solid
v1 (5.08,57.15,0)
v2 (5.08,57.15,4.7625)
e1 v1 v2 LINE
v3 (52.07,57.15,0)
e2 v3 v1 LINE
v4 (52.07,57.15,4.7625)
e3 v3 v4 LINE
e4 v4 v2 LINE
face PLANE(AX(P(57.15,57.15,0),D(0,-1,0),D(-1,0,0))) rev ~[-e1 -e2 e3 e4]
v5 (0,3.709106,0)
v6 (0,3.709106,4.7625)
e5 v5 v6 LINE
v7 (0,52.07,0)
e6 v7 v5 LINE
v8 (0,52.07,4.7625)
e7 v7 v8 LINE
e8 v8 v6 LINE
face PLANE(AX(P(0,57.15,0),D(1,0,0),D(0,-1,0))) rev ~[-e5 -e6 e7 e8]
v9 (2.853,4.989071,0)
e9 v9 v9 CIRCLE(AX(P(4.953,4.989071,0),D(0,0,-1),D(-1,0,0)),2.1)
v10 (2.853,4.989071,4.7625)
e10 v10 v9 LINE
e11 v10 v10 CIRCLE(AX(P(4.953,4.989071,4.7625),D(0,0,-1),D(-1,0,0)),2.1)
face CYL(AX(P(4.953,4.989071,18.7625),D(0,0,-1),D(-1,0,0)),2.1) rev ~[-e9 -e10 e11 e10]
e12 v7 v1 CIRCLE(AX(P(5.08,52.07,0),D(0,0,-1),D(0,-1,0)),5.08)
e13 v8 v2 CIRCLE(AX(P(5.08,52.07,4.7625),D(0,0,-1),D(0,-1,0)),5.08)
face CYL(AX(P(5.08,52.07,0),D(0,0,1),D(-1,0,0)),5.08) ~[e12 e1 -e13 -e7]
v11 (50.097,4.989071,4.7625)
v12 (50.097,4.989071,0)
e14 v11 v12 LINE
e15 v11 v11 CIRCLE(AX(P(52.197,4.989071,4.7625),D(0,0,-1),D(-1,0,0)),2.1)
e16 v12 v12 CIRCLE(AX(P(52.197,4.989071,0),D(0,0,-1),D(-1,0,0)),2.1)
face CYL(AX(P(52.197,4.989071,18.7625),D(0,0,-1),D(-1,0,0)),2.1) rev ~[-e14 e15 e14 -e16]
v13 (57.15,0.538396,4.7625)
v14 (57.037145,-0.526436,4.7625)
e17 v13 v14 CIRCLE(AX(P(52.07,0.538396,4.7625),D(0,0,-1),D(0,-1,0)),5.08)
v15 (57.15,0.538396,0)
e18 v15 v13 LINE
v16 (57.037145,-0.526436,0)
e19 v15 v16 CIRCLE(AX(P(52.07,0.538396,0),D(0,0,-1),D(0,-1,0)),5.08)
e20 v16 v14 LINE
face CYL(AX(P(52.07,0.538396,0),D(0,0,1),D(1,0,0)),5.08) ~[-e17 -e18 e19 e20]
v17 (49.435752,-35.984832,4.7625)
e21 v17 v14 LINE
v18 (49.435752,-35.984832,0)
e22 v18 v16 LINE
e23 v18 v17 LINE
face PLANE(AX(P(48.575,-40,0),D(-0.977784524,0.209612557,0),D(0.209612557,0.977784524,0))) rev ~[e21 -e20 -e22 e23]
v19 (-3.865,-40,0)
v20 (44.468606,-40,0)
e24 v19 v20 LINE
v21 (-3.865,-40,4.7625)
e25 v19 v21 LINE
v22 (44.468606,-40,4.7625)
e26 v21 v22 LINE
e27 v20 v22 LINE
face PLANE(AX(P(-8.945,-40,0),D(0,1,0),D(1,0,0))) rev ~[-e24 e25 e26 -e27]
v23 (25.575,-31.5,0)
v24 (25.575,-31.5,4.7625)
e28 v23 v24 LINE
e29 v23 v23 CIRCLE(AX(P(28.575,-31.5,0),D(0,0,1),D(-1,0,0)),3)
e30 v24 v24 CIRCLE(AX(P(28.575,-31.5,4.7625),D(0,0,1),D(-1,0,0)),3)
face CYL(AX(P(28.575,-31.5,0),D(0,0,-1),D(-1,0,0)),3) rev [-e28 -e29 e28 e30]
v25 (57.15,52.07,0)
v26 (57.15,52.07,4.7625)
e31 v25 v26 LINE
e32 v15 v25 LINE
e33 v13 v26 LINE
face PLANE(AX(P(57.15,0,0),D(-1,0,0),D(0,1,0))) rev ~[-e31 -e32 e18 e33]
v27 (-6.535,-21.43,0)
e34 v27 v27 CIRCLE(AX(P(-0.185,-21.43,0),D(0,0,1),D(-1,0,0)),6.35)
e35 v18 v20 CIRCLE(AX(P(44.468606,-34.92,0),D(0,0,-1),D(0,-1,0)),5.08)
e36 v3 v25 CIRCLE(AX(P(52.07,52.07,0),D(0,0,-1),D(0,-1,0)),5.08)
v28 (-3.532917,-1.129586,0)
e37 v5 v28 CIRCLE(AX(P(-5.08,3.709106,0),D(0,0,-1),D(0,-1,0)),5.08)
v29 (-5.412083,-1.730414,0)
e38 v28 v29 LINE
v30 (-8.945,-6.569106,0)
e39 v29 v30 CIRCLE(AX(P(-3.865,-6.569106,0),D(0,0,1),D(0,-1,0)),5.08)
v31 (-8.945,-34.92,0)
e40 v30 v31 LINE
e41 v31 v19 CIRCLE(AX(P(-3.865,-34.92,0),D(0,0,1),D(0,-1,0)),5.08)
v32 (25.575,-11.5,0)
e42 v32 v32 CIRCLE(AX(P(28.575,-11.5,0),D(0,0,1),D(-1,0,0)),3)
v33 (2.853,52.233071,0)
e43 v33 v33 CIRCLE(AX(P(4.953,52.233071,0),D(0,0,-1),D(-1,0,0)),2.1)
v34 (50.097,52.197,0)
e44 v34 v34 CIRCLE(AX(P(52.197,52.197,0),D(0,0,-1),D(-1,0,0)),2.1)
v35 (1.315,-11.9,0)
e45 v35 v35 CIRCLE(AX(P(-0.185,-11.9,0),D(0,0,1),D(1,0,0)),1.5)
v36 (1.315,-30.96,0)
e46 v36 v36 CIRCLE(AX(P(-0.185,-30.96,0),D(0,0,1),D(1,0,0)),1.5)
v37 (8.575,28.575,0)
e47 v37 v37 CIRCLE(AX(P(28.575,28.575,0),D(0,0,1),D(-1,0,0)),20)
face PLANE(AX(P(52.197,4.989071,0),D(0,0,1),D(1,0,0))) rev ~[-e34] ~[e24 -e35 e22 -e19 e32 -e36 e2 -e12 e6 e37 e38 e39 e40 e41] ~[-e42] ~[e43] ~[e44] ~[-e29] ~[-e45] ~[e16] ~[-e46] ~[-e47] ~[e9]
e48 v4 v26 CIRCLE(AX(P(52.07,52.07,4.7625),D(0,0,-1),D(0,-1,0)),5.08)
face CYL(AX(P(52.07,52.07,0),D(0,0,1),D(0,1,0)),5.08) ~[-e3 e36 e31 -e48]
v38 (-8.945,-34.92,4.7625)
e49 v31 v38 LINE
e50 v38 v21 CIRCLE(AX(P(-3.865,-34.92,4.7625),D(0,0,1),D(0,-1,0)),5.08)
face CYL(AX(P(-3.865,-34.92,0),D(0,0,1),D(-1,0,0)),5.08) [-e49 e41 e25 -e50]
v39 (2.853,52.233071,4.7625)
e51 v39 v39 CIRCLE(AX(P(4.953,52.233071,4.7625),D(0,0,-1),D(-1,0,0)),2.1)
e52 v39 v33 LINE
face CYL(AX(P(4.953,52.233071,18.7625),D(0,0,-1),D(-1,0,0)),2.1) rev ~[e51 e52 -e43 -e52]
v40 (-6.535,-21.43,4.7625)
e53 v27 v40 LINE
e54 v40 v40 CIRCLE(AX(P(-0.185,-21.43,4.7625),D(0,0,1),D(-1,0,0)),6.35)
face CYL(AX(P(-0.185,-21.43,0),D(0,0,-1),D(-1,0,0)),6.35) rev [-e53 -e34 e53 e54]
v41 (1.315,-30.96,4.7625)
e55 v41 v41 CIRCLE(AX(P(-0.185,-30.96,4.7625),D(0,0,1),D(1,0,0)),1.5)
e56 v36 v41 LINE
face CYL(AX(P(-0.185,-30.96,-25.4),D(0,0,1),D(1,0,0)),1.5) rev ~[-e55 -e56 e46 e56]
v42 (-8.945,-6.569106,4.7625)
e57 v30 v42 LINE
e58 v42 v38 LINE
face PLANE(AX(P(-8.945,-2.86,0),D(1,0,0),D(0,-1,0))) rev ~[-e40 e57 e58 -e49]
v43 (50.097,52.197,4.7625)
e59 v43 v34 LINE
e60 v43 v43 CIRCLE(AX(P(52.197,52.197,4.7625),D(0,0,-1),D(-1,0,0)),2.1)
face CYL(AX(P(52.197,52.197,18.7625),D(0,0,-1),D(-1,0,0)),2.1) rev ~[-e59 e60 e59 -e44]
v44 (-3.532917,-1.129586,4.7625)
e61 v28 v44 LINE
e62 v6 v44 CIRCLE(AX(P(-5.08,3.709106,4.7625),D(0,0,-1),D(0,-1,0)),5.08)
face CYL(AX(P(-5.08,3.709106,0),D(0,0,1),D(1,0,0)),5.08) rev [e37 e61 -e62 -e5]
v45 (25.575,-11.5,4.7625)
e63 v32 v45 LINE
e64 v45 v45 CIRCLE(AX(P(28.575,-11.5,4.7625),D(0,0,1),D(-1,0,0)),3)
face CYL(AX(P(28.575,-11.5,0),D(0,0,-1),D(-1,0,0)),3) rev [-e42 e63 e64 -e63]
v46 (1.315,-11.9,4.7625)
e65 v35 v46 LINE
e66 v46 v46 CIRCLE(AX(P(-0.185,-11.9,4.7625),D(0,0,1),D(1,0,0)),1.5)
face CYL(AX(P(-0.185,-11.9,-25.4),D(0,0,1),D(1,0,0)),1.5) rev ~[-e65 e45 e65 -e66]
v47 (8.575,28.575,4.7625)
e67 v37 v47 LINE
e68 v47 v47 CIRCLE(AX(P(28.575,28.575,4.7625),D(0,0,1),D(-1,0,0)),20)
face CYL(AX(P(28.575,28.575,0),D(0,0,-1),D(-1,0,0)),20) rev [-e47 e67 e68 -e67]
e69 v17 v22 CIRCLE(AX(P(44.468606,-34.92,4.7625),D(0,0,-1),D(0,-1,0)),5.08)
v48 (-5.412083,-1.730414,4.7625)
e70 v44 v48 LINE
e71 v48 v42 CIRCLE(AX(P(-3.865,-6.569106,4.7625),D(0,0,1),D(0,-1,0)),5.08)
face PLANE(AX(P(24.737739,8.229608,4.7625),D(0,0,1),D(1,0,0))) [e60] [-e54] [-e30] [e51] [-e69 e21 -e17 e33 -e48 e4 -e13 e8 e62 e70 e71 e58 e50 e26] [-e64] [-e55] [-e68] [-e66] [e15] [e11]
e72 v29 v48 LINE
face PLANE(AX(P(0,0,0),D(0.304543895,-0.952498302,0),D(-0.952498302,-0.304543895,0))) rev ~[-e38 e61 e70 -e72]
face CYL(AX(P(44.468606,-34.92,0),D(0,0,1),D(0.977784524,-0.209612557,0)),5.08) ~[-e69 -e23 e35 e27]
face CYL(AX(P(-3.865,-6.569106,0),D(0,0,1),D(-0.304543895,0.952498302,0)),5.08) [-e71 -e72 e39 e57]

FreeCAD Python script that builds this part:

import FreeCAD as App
import Part
import Sketcher
Q = App.Units.Quantity


def edges_at(feature, points):
    """Names of the edges that pass closest to the given points."""
    edges = feature.Shape.Edges
    near = lambda p: min(range(len(edges)), key=lambda i: edges[i].distToShape(Part.Vertex(*p))[0])
    return sorted({f"Edge{near(p) + 1}" for p in points})

doc = App.newDocument("Part")
body = doc.addObject("PartDesign::Body", "Body")

sketch1 = body.newObject("Sketcher::SketchObject", "Sketch")
sketch1.AttachmentSupport = (doc.getObject("XY_Plane"), [""])
sketch1.MapMode = "FlatFace"
sketch1.addGeometry([
    Part.LineSegment(App.Vector(0, 57.15, 0), App.Vector(0, 0, 0)),
    Part.LineSegment(App.Vector(0, 0, 0), App.Vector(-8.945, -2.86, 0)),
    Part.LineSegment(App.Vector(-8.945, -2.86, 0), App.Vector(-8.945, -40, 0)),
    Part.LineSegment(App.Vector(-8.945, -40, 0), App.Vector(48.575, -40, 0)),
    Part.LineSegment(App.Vector(48.575, -40, 0), App.Vector(57.15, 0, 0)),
    Part.LineSegment(App.Vector(57.15, 0, 0), App.Vector(57.15, 57.15, 0)),
    Part.LineSegment(App.Vector(57.15, 57.15, 0), App.Vector(0, 57.15, 0)),
    Part.Circle(App.Vector(-0.185, -21.43, 0), App.Vector(0, 0, 1), 6.35),
    Part.Circle(App.Vector(28.575, -31.5, 0), App.Vector(0, 0, 1), 3),
    Part.Circle(App.Vector(28.575, -11.5, 0), App.Vector(0, 0, 1), 3),
    Part.Circle(App.Vector(28.575, 28.575, 0), App.Vector(0, 0, 1), 20),
], False)
sketch1.addConstraint([
    Sketcher.Constraint("Coincident", 0, 2, 1, 1),
    Sketcher.Constraint("Coincident", 1, 2, 2, 1),
    Sketcher.Constraint("Coincident", 2, 2, 3, 1),
    Sketcher.Constraint("Coincident", 3, 2, 4, 1),
    Sketcher.Constraint("Coincident", 4, 2, 5, 1),
    Sketcher.Constraint("Coincident", 5, 2, 6, 1),
    Sketcher.Constraint("Coincident", 6, 2, 0, 1),
    Sketcher.Constraint("Vertical", 0),
    Sketcher.Constraint("Vertical", 2),
    Sketcher.Constraint("Horizontal", 3),
    Sketcher.Constraint("Vertical", 5),
    Sketcher.Constraint("Horizontal", 6),
    Sketcher.Constraint("Coincident", 0, 2, -1, 1),
    Sketcher.Constraint("Equal", 8, 9),
    Sketcher.Constraint("PointOnObject", 4, 2, -1),
    Sketcher.Constraint("Vertical", 8, 3, 9, 3),
    Sketcher.Constraint("Vertical", 9, 3, 10, 3),
    Sketcher.Constraint("Equal", 6, 0),
    Sketcher.Constraint("Diameter", 8, Q("6 mm")),
    Sketcher.Constraint("Diameter", 10, Q("40 mm")),
    Sketcher.Constraint("Diameter", 7, Q("12.7 mm")),
    Sketcher.Constraint("DistanceY", 2, 2, -1, 1, Q("40 mm")),
    Sketcher.Constraint("DistanceY", 8, 3, 9, 3, Q("20 mm")),
    Sketcher.Constraint("DistanceX", 8, 3, 3, 2, Q("20 mm")),
    Sketcher.Constraint("DistanceX", 3, 1, 3, 2, Q("57.52 mm")),
    Sketcher.Constraint("DistanceX", 6, 2, 6, 1, Q("57.15 mm")),
    Sketcher.Constraint("DistanceY", 2, 2, 2, 1, Q("37.14 mm")),
    Sketcher.Constraint("DistanceY", 8, 3, -1, 1, Q("31.5 mm")),
    Sketcher.Constraint("DistanceY", 7, 3, -1, 1, Q("21.43 mm")),
    Sketcher.Constraint("DistanceX", 7, 3, 8, 3, Q("28.76 mm")),
    Sketcher.Constraint("DistanceX", 7, 3, -1, 1, Q("0.185 mm")),
    Sketcher.Constraint("DistanceY", -1, 1, 10, 3, Q("28.575 mm")),
])
pad1 = body.newObject("PartDesign::Pad", "Pad")
pad1.Profile = sketch1
pad1.Length = 4.7625
doc.recompute()

fillet = body.newObject("PartDesign::Fillet", "Fillet")
fillet.Base = (pad1, edges_at(pad1, [
    (-8.945, -40, 2.381),
    (-8.945, -2.86, 2.381),
    (0, 0, 2.381),
    (0, 57.15, 2.381),
    (57.15, 57.15, 2.381),
    (57.15, 0, 2.381),
    (48.575, -40, 2.381),
]))
fillet.Radius = 5.08

sketch2 = body.newObject("Sketcher::SketchObject", "Sketch001")
sketch2.AttachmentSupport = (doc.getObject("XY_Plane"), [""])
sketch2.MapMode = "FlatFace"
sketch2.AttachmentOffset = App.Placement(App.Vector(0, 0, 4.7625), App.Rotation())
sketch2.addGeometry([
    Part.Circle(App.Vector(4.953, 52.233071, 0), App.Vector(0, 0, 1), 2.1),
    Part.Circle(App.Vector(52.197, 52.197, 0), App.Vector(0, 0, 1), 2.1),
    Part.Circle(App.Vector(52.197, 4.989071, 0), App.Vector(0, 0, 1), 2.1),
    Part.Circle(App.Vector(4.953, 4.989071, 0), App.Vector(0, 0, 1), 2.1),
], False)
sketch2.addConstraint([
    Sketcher.Constraint("Equal", 0, 1),
    Sketcher.Constraint("Equal", 1, 2),
    Sketcher.Constraint("Equal", 2, 3),
    Sketcher.Constraint("Horizontal", 2, 3, 3, 3),
    Sketcher.Constraint("Vertical", 1, 3, 2, 3),
    Sketcher.Constraint("Vertical", 0, 3, 3, 3),
    Sketcher.Constraint("Diameter", 0, Q("4.2 mm")),
    Sketcher.Constraint("DistanceX", -1, 1, 0, 3, Q("4.953 mm")),
    Sketcher.Constraint("DistanceX", -1, 1, 1, 3, Q("52.197 mm")),
    Sketcher.Constraint("DistanceY", -1, 1, 1, 3, Q("52.197 mm")),
    Sketcher.Constraint("DistanceY", 2, 3, 0, 3, Q("47.244 mm")),
    Sketcher.Constraint("DistanceY", -1, 1, 0, 3, Q("52.233071 mm")),
])
doc.recompute()
hole = body.newObject("PartDesign::Hole", "Hole")
hole.Profile = sketch2
hole.ThreadType = "None"
hole.Diameter = 4.2
hole.DepthType = "Dimension"
hole.Depth = 14
hole.DrillPoint = "Angled"
hole.DrillPointAngle = 118

sketch3 = body.newObject("Sketcher::SketchObject", "Sketch002")
sketch3.AttachmentSupport = (doc.getObject("XY_Plane"), [""])
sketch3.MapMode = "FlatFace"
sketch3.addGeometry([
    Part.Circle(App.Vector(-0.185, -30.96, 0), App.Vector(0, 0, 1), 1.5),
    Part.Circle(App.Vector(-0.185, -11.9, 0), App.Vector(0, 0, 1), 1.5),
], False)
sketch3.addConstraint([
    Sketcher.Constraint("Equal", 0, 1),
    Sketcher.Constraint("Vertical", 0, 3, 1, 3),
    Sketcher.Constraint("Diameter", 0, Q("3 mm")),
    Sketcher.Constraint("DistanceY", 1, 3, -1, 1, Q("11.9 mm")),
    Sketcher.Constraint("DistanceY", 0, 3, -1, 1, Q("30.96 mm")),
    Sketcher.Constraint("DistanceX", 0, 3, -1, 1, Q("0.185 mm")),
])
doc.recompute()
hole2 = body.newObject("PartDesign::Hole", "Hole001")
hole2.Profile = sketch3
hole2.ThreadType = "None"
hole2.Diameter = 3
hole2.DepthType = "Dimension"
hole2.Depth = 25.4
hole2.DrillPoint = "Angled"
hole2.DrillPointAngle = 118
hole2.Reversed = True

doc.recompute()
